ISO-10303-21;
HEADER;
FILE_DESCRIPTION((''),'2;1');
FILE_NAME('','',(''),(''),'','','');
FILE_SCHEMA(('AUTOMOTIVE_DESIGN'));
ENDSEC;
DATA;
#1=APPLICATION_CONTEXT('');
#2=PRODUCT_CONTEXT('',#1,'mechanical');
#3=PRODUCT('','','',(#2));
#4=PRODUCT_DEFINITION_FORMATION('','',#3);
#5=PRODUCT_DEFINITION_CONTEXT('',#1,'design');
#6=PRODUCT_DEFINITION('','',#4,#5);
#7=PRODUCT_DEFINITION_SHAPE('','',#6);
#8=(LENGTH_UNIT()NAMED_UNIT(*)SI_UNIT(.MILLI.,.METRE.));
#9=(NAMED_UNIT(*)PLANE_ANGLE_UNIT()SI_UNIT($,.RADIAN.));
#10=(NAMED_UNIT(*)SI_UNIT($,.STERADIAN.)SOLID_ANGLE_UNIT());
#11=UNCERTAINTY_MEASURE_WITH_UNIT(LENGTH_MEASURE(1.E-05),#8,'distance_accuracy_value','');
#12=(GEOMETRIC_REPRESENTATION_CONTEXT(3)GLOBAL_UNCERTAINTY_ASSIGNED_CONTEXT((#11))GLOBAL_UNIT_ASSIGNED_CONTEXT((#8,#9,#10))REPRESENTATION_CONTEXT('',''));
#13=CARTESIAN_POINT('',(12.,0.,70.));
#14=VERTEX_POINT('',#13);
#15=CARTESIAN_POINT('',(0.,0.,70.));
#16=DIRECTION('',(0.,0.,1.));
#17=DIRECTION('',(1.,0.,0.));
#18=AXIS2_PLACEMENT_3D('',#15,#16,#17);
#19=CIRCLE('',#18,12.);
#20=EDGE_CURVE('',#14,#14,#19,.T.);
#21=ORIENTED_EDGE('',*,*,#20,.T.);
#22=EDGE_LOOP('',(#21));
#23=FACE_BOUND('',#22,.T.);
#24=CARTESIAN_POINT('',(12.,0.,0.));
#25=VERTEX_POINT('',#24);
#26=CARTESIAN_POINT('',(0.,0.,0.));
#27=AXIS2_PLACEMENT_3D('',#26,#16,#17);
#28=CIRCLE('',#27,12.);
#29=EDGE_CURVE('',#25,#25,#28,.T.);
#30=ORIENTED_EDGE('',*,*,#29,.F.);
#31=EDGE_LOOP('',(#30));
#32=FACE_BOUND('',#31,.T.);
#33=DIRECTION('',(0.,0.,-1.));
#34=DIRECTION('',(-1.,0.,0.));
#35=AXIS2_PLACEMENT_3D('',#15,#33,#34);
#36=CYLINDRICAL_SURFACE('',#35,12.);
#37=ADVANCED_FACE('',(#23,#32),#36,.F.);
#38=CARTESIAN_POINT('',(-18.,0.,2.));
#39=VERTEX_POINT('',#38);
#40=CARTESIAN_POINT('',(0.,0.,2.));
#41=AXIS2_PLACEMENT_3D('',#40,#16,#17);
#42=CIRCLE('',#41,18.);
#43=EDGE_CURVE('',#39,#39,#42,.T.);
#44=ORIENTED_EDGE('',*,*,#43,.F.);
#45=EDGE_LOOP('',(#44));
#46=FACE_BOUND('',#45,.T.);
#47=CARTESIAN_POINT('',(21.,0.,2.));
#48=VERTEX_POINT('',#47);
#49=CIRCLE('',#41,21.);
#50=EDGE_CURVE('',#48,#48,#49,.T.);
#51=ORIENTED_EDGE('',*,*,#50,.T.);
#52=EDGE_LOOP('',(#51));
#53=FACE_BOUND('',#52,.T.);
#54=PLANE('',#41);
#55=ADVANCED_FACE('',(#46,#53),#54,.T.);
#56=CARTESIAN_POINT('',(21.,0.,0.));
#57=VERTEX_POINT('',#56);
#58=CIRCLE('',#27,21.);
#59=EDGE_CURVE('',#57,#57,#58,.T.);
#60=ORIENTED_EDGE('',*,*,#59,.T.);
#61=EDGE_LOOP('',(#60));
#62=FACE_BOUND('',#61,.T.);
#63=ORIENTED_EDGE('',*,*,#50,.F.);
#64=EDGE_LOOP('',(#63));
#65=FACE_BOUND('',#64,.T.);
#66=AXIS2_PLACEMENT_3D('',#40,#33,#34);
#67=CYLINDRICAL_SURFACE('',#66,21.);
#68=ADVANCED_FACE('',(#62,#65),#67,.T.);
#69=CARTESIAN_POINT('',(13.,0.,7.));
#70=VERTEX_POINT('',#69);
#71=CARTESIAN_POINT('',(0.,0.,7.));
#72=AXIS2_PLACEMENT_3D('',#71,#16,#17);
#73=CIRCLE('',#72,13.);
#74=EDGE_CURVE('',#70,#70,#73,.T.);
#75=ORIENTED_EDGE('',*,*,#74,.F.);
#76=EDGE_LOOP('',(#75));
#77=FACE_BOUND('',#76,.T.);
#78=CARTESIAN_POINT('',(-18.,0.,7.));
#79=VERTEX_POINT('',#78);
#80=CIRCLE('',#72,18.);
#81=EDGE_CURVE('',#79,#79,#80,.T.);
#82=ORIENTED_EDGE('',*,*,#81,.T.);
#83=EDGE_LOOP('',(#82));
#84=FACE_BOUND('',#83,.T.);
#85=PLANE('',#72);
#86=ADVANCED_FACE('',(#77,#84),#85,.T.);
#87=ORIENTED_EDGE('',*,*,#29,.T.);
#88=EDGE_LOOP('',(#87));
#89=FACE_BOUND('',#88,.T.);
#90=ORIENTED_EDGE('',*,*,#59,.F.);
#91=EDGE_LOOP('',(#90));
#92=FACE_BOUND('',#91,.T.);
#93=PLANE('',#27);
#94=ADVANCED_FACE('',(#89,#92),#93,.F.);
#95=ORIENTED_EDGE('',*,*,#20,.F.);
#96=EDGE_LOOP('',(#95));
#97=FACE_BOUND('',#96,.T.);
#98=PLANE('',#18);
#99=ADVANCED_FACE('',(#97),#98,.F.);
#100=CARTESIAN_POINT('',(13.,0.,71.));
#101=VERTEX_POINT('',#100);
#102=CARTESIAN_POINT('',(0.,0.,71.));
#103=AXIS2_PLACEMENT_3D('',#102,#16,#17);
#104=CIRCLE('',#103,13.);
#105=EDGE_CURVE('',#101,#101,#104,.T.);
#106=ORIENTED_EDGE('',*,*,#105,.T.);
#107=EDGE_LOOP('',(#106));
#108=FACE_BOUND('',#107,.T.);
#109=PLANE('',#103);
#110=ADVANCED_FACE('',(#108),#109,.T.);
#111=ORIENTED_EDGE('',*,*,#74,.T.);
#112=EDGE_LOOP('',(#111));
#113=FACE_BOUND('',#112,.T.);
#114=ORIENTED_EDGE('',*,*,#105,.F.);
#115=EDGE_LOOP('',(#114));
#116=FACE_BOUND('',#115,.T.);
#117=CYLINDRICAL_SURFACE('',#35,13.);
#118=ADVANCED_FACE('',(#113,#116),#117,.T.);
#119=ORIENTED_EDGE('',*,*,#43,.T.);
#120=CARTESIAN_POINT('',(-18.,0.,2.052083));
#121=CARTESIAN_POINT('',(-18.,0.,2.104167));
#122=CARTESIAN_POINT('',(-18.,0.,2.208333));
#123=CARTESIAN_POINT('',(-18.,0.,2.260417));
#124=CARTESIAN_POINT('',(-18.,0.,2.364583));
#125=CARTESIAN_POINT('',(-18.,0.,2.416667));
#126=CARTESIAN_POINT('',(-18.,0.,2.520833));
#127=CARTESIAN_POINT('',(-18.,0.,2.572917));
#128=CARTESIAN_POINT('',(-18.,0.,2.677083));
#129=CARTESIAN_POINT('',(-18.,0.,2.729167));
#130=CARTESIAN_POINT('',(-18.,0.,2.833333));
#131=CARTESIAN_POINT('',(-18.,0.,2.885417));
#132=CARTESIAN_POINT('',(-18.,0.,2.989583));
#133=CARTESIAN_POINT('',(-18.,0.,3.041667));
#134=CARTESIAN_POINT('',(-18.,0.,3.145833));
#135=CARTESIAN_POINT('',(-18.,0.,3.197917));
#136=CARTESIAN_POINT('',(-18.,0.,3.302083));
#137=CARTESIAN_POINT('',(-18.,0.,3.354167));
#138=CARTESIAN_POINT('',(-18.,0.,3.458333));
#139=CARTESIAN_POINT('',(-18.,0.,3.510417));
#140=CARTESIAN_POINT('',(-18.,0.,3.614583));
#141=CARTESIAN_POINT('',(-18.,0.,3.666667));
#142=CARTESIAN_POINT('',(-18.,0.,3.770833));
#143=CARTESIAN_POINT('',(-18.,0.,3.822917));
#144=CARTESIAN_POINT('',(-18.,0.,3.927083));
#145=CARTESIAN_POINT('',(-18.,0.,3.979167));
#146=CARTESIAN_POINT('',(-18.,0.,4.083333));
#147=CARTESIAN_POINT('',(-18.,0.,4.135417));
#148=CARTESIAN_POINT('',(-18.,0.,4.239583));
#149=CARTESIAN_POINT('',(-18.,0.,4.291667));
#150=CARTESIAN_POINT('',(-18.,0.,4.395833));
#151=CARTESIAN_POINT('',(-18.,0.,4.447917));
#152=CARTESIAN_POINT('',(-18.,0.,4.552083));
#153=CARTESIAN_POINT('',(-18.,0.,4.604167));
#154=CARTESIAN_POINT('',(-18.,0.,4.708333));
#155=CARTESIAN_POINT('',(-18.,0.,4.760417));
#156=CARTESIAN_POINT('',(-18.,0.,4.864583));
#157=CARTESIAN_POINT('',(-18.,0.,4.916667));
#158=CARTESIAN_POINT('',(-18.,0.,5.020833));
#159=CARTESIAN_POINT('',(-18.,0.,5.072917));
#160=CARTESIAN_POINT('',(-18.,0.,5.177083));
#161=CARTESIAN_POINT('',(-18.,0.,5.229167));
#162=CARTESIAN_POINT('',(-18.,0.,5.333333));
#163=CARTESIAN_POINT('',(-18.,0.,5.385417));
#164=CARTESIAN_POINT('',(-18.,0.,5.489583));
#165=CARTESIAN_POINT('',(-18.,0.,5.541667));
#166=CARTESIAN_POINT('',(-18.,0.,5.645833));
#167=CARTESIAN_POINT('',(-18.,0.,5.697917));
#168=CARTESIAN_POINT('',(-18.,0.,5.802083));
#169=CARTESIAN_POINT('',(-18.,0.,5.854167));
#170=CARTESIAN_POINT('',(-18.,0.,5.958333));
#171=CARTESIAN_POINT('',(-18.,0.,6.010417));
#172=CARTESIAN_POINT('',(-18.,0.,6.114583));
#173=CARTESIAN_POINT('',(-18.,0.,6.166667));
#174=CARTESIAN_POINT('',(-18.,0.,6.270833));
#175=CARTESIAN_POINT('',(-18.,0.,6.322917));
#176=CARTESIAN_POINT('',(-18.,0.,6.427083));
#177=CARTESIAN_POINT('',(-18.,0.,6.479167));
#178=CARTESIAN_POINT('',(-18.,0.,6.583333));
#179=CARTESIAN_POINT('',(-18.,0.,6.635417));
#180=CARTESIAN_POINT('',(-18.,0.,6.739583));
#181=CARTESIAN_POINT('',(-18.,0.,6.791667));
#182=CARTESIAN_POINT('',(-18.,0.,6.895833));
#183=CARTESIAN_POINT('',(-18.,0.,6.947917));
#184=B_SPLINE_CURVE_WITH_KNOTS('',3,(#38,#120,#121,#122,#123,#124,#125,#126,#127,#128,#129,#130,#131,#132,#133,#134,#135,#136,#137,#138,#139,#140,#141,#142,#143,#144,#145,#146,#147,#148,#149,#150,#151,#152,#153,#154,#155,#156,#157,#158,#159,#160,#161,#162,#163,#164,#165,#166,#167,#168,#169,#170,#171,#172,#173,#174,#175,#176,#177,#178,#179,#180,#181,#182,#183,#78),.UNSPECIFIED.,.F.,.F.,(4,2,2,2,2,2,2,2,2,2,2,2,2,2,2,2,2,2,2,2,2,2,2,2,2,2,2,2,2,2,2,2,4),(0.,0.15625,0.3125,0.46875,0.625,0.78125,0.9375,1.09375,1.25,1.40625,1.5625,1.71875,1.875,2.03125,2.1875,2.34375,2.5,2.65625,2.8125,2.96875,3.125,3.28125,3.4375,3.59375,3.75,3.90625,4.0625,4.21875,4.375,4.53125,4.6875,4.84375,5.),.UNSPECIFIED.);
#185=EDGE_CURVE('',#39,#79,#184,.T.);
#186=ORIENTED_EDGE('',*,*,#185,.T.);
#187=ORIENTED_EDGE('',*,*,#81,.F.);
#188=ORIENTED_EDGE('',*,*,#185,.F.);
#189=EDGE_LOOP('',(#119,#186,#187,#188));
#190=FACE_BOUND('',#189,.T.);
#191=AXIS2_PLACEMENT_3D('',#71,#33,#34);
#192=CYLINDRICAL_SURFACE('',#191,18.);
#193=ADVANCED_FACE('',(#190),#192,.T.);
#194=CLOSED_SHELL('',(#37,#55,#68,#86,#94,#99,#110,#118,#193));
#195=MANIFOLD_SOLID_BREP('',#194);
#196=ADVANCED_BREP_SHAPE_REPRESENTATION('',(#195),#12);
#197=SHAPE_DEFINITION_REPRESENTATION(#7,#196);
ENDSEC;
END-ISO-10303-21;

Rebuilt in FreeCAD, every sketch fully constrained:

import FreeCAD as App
import Part
import Sketcher

doc = App.newDocument("Part")
body = doc.addObject("PartDesign::Body", "Body")

# Sketch on XY plane
sketch1 = body.newObject("Sketcher::SketchObject", "Sketch")
sketch1.AttachmentSupport = (doc.getObject("XY_Plane"), [""])
sketch1.MapMode = "FlatFace"
sketch1.addGeometry([
    Part.Circle(App.Vector(0, 0, 0), App.Vector(0, 0, 1), 13),
    Part.Circle(App.Vector(0, 0, 0), App.Vector(0, 0, 1), 12),
], False)
sketch1.addConstraint([
    Sketcher.Constraint("Coincident", 0, 3, -1, 1),
    Sketcher.Constraint("Coincident", 1, 3, -1, 1),
    Sketcher.Constraint("Diameter", 0, 26.0),
    Sketcher.Constraint("Diameter", 1, 24.0),
])
pad1 = body.newObject("PartDesign::Pad", "Pad")
pad1.Profile = sketch1
pad1.Length = 70

# Sketch on XY plane
sketch2 = body.newObject("Sketcher::SketchObject", "Sketch001")
sketch2.AttachmentSupport = (doc.getObject("XY_Plane"), [""])
sketch2.MapMode = "FlatFace"
sketch2.addGeometry([
    Part.Circle(App.Vector(0, 0, 0), App.Vector(0, 0, 1), 18),
    Part.Circle(App.Vector(0, 0, 0), App.Vector(0, 0, 1), 13),
], False)
sketch2.addConstraint([
    Sketcher.Constraint("Coincident", 0, 3, -1, 1),
    Sketcher.Constraint("Coincident", 1, 3, -1, 1),
    Sketcher.Constraint("Diameter", 0, 36.0),
    Sketcher.Constraint("Diameter", 1, 26.0),
])
pad2 = body.newObject("PartDesign::Pad", "Pad001")
pad2.Profile = sketch2
pad2.Length = 7

# Sketch on XY plane
sketch3 = body.newObject("Sketcher::SketchObject", "Sketch002")
sketch3.AttachmentSupport = (doc.getObject("XY_Plane"), [""])
sketch3.MapMode = "FlatFace"
sketch3.addGeometry([
    Part.Circle(App.Vector(0, 0, 0), App.Vector(0, 0, 1), 21),
    Part.Circle(App.Vector(0, 0, 0), App.Vector(0, 0, 1), 18),
], False)
sketch3.addConstraint([
    Sketcher.Constraint("Coincident", 0, 3, -1, 1),
    Sketcher.Constraint("Coincident", 1, 3, -1, 1),
    Sketcher.Constraint("Diameter", 0, 42.0),
    Sketcher.Constraint("Diameter", 1, 36.0),
])
pad3 = body.newObject("PartDesign::Pad", "Pad002")
pad3.Profile = sketch3
pad3.Length = 2

# Sketch on XY plane
sketch4 = body.newObject("Sketcher::SketchObject", "Sketch003")
sketch4.AttachmentSupport = (doc.getObject("XY_Plane"), [""])
sketch4.MapMode = "FlatFace"
sketch4.AttachmentOffset = App.Placement(App.Vector(0, 0, 70), App.Rotation())
sketch4.addGeometry(Part.Circle(App.Vector(0, 0, 0), App.Vector(0, 0, 1), 13), False)
sketch4.addConstraint([
    Sketcher.Constraint("Coincident", 0, 3, -1, 1),
    Sketcher.Constraint("Diameter", 0, 26.0),
])
pad4 = body.newObject("PartDesign::Pad", "Pad003")
pad4.Profile = sketch4
pad4.Length = 1

doc.recompute()
